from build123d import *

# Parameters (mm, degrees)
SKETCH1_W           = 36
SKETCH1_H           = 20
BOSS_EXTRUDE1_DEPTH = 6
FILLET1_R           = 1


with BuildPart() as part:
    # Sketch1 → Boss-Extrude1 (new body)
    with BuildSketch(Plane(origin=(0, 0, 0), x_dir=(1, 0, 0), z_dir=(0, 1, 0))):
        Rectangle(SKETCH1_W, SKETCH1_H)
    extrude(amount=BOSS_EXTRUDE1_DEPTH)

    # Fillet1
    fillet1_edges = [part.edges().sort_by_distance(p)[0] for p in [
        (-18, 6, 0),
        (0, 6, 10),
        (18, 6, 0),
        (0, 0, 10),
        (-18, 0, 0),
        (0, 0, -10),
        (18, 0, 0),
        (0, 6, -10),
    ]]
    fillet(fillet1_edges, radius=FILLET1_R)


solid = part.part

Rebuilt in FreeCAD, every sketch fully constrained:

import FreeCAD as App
import Part
import Sketcher


def edges_at(feature, points):
    """Names of the edges that pass closest to the given points."""
    edges = feature.Shape.Edges
    near = lambda p: min(range(len(edges)), key=lambda i: edges[i].distToShape(Part.Vertex(*p))[0])
    return sorted({f"Edge{near(p) + 1}" for p in points})

doc = App.newDocument("Part")
body = doc.addObject("PartDesign::Body", "Body")

sketch1 = doc.addObject("Sketcher::SketchObject", "Sketch")
body.addObject(sketch1)
sketch1.AttachmentSupport = (doc.XZ_Plane, [""])
sketch1.MapMode = "FlatFace"
sketch1.addGeometry(Part.LineSegment(App.Vector(-18, -10, 0), App.Vector(-18, 10, 0)), False)
sketch1.addGeometry(Part.LineSegment(App.Vector(-18, 10, 0), App.Vector(18, 10, 0)), False)
sketch1.addGeometry(Part.LineSegment(App.Vector(18, 10, 0), App.Vector(18, -10, 0)), False)
sketch1.addGeometry(Part.LineSegment(App.Vector(18, -10, 0), App.Vector(-18, -10, 0)), False)
sketch1.addConstraint(Sketcher.Constraint("Coincident", 0, 2, 1, 1))
sketch1.addConstraint(Sketcher.Constraint("Coincident", 1, 2, 2, 1))
sketch1.addConstraint(Sketcher.Constraint("Coincident", 2, 2, 3, 1))
sketch1.addConstraint(Sketcher.Constraint("Coincident", 3, 2, 0, 1))
sketch1.addConstraint(Sketcher.Constraint("Vertical", 0))
sketch1.addConstraint(Sketcher.Constraint("Horizontal", 1))
sketch1.addConstraint(Sketcher.Constraint("Vertical", 2))
sketch1.addConstraint(Sketcher.Constraint("Horizontal", 3))
sketch1.addConstraint(Sketcher.Constraint("Symmetric", 0, 2, 2, 2, -1, 1))
sketch1.addConstraint(Sketcher.Constraint("DistanceX", 1, 1, 1, 2, 36.0))
sketch1.addConstraint(Sketcher.Constraint("DistanceY", 0, 1, 0, 2, 20.0))
pad1 = doc.addObject("PartDesign::Pad", "Pad")
body.addObject(pad1)
pad1.Profile = sketch1
pad1.Length = 6
pad1.Reversed = True
doc.recompute()

fillet = doc.addObject("PartDesign::Fillet", "Fillet")
body.addObject(fillet)
fillet.Base = (pad1, edges_at(pad1, [
    (-18, 6, 0),
    (0, 6, 10),
    (18, 6, 0),
    (0, 0, 10),
    (-18, 0, 0),
    (0, 0, -10),
    (18, 0, 0),
    (0, 6, -10),
]))
fillet.Radius = 1

doc.recompute()
